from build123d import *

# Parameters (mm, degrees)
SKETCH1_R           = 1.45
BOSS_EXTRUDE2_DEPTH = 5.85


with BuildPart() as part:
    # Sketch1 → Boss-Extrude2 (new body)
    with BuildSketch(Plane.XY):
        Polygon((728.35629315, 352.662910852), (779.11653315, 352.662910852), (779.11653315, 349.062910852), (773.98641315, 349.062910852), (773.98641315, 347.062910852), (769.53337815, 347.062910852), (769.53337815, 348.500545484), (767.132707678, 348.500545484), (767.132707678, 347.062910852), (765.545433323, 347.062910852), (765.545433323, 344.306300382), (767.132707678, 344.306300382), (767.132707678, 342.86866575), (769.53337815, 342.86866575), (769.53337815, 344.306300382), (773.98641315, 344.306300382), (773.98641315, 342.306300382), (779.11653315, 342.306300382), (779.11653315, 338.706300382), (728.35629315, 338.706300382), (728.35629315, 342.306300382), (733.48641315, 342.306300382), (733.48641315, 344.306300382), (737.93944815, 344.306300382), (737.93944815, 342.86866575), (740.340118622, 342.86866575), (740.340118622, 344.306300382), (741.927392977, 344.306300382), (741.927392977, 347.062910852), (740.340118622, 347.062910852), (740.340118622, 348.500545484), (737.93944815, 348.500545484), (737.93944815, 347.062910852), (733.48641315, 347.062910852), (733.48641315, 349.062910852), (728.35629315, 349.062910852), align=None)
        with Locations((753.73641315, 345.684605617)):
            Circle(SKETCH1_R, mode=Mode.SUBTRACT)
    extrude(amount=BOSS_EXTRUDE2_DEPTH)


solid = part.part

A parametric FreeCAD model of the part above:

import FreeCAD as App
import Part
import Sketcher

V = App.Vector
Q = App.Units.Quantity


def add_polygon(sketch, points):
    """Adds a closed chain of lines whose ends are joined by coincident constraints."""
    first, n = sketch.GeometryCount, len(points)
    for a, b in zip(points, points[1:] + points[:1]):
        sketch.addGeometry(Part.LineSegment(App.Vector(*a, 0), App.Vector(*b, 0)), False)
    for i in range(n):
        sketch.addConstraint(Sketcher.Constraint("Coincident", first + i, 2, first + (i + 1) % n, 1))

doc = App.newDocument("Part")
body = doc.addObject("PartDesign::Body", "Body")

# Sketch on XY plane
sketch1 = body.newObject("Sketcher::SketchObject", "Sketch")
sketch1.AttachmentSupport = (doc.getObject("XY_Plane"), [""])
sketch1.MapMode = "FlatFace"
add_polygon(sketch1, [(779.1, 352.7), (728.4, 352.7), (728.4, 349.1), (733.5, 349.1), (733.5, 347.1), (737.9, 347.1), (737.9, 348.5), (740.3, 348.5), (740.3, 347.1), (741.9, 347.1), (741.9, 344.3), (740.3, 344.3), (740.3, 342.9), (737.9, 342.9), (737.9, 344.3), (733.5, 344.3), (733.5, 342.3), (728.4, 342.3), (728.4, 338.7), (779.1, 338.7), (779.1, 342.3), (774, 342.3), (774, 344.3), (769.5, 344.3), (769.5, 342.9), (767.1, 342.9), (767.1, 344.3), (765.5, 344.3), (765.5, 347.1), (767.1, 347.1), (767.1, 348.5), (769.5, 348.5), (769.5, 347.1), (774, 347.1), (774, 349.1), (779.1, 349.1)])  # lines 0-35
sketch1.addGeometry(Part.Circle(V(753.7, 345.7, 0), V(0, 0, 1), 1.4), False)  # 36
sketch1.addConstraint([
    Sketcher.Constraint("Horizontal", 0),
    Sketcher.Constraint("Vertical", 1),
    Sketcher.Constraint("Horizontal", 2),
    Sketcher.Constraint("Vertical", 3),
    Sketcher.Constraint("Horizontal", 4),
    Sketcher.Constraint("Vertical", 5),
    Sketcher.Constraint("Horizontal", 6),
    Sketcher.Constraint("Vertical", 7),
    Sketcher.Constraint("Horizontal", 8),
    Sketcher.Constraint("Vertical", 9),
    Sketcher.Constraint("Horizontal", 10),
    Sketcher.Constraint("Vertical", 11),
    Sketcher.Constraint("Horizontal", 12),
    Sketcher.Constraint("Vertical", 13),
    Sketcher.Constraint("Horizontal", 14),
    Sketcher.Constraint("Vertical", 15),
    Sketcher.Constraint("Horizontal", 16),
    Sketcher.Constraint("Vertical", 17),
    Sketcher.Constraint("Horizontal", 18),
    Sketcher.Constraint("Vertical", 19),
    Sketcher.Constraint("Horizontal", 20),
    Sketcher.Constraint("Vertical", 21),
    Sketcher.Constraint("Horizontal", 22),
    Sketcher.Constraint("Vertical", 23),
    Sketcher.Constraint("Horizontal", 24),
    Sketcher.Constraint("Vertical", 25),
    Sketcher.Constraint("Horizontal", 26),
    Sketcher.Constraint("Vertical", 27),
    Sketcher.Constraint("Horizontal", 28),
    Sketcher.Constraint("Vertical", 29),
    Sketcher.Constraint("Horizontal", 30),
    Sketcher.Constraint("Vertical", 31),
    Sketcher.Constraint("Horizontal", 32),
    Sketcher.Constraint("Vertical", 33),
    Sketcher.Constraint("Horizontal", 34),
    Sketcher.Constraint("Vertical", 35),
    Sketcher.Constraint("Horizontal", 4, 2, 7, 2),
    Sketcher.Constraint("Horizontal", 10, 2, 13, 2),
    Sketcher.Constraint("Horizontal", 16, 2, 19, 2),
    Sketcher.Constraint("Horizontal", 14, 2, 21, 2),
    Sketcher.Constraint("Horizontal", 12, 2, 23, 2),
    Sketcher.Constraint("Horizontal", 22, 2, 25, 2),
    Sketcher.Constraint("Horizontal", 8, 2, 27, 2),
    Sketcher.Constraint("Horizontal", 6, 2, 29, 2),
    Sketcher.Constraint("Horizontal", 28, 2, 31, 2),
    Sketcher.Constraint("Horizontal", 2, 2, 33, 2),
    Sketcher.Constraint("Vertical", 7, 2, 10, 2),
    Sketcher.Constraint("Vertical", 5, 2, 12, 2),
    Sketcher.Constraint("Vertical", 3, 2, 14, 2),
    Sketcher.Constraint("Vertical", 1, 2, 16, 2),
    Sketcher.Constraint("Vertical", 25, 2, 28, 2),
    Sketcher.Constraint("Vertical", 23, 2, 30, 2),
    Sketcher.Constraint("Vertical", 21, 2, 32, 2),
    Sketcher.Constraint("Vertical", 19, 2, 34, 2),
    Sketcher.Constraint("Equal", 16, 20),
    Sketcher.Constraint("Equal", 14, 22),
    Sketcher.Constraint("Equal", 12, 24),
    Sketcher.Constraint("Equal", 10, 26),
    Sketcher.Constraint("Equal", 7, 11),
    Sketcher.Constraint("Equal", 3, 15),
    Sketcher.Constraint("Equal", 1, 17),
    Sketcher.Constraint("Diameter", 36, Q("2.9 mm")),
    Sketcher.Constraint("DistanceY", 3, 2, 3, 1, Q("2 mm")),
    Sketcher.Constraint("DistanceY", 1, 2, 1, 1, Q("3.6 mm")),
    Sketcher.Constraint("DistanceX", 2, 2, 36, 3, Q("20.25 mm")),
    Sketcher.Constraint("DistanceX", 36, 3, 20, 2, Q("20.25 mm")),
    Sketcher.Constraint("DistanceX", 0, 2, 0, 1, Q("50.76024 mm")),
    Sketcher.Constraint("DistanceX", 6, 1, 6, 2, Q("2.40067 mm")),
    Sketcher.Constraint("DistanceY", 9, 2, 9, 1, Q("2.75661 mm")),
    Sketcher.Constraint("DistanceY", -1, 1, 9, 2, Q("344.3063 mm")),
    Sketcher.Constraint("DistanceX", 4, 1, 4, 2, Q("4.453035 mm")),
    Sketcher.Constraint("DistanceX", 8, 1, 8, 2, Q("1.587274 mm")),
    Sketcher.Constraint("DistanceY", 5, 1, 5, 2, Q("1.437635 mm")),
    Sketcher.Constraint("DistanceX", -1, 1, 4, 2, Q("737.939448 mm")),
    Sketcher.Constraint("DistanceY", -1, 1, 36, 3, Q("345.684606 mm")),
])
pad1 = body.newObject("PartDesign::Pad", "Pad")
pad1.Profile = sketch1
pad1.Length = 5.85

doc.recompute()
